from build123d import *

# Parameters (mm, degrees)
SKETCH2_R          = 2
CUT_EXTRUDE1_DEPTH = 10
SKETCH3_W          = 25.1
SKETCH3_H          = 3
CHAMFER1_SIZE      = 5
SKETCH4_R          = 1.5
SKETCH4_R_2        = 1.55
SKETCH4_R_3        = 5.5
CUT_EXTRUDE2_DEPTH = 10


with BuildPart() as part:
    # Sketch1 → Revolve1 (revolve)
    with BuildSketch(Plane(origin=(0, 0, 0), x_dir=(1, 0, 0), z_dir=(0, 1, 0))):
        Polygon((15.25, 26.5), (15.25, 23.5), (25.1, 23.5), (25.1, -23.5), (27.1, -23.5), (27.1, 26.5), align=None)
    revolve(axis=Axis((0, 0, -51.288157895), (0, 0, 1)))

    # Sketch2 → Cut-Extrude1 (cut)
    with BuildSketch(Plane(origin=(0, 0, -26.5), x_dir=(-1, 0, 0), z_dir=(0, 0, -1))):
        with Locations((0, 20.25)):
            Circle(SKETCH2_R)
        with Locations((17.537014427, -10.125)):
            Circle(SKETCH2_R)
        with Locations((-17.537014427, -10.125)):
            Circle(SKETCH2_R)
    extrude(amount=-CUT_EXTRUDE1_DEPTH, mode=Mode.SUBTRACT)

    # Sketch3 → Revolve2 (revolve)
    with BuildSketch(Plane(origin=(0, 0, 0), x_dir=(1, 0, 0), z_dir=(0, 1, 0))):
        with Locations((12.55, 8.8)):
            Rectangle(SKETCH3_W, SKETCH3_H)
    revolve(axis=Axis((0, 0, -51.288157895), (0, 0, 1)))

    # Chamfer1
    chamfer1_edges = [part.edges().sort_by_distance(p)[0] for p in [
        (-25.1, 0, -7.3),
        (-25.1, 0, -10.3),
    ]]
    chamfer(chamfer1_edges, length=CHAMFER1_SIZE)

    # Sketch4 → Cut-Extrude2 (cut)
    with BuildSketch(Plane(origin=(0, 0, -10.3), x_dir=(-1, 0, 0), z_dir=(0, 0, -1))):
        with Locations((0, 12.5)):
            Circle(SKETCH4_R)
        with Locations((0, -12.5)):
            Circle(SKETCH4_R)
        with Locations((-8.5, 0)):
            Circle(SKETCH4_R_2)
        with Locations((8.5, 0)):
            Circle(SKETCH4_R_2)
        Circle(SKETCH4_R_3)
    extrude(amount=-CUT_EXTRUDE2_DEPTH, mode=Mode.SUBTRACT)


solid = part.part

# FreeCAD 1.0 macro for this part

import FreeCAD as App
import Part
import Sketcher

V = App.Vector
Q = App.Units.Quantity


def edges_at(feature, points):
    """Names of the edges that pass closest to the given points."""
    edges = feature.Shape.Edges
    near = lambda p: min(range(len(edges)), key=lambda i: edges[i].distToShape(Part.Vertex(*p))[0])
    return sorted({f"Edge{near(p) + 1}" for p in points})


def add_polygon(sketch, points):
    """Adds a closed chain of lines whose ends are joined by coincident constraints."""
    first, n = sketch.GeometryCount, len(points)
    for a, b in zip(points, points[1:] + points[:1]):
        sketch.addGeometry(Part.LineSegment(App.Vector(*a, 0), App.Vector(*b, 0)), False)
    for i in range(n):
        sketch.addConstraint(Sketcher.Constraint("Coincident", first + i, 2, first + (i + 1) % n, 1))

doc = App.newDocument("Part")
params = doc.addObject("Spreadsheet::Sheet", "Params")
for row, (alias, value) in enumerate([
    ("sketch1_width", "2 mm"),
    ("sketch1_height", "3 mm"),
    ("sketch1_height2", "47 mm"),
    ("sketch1_width2", "9.85 mm"),
    ("revolution_angle", "360 deg"),
    ("sketch2_diameter", "4 mm"),
    ("pocket1_length", "10 mm"),
    ("sketch3_height", "3 mm"),
    ("sketch3_width", "25.1 mm"),
    ("revolution2_angle", "360 deg"),
    ("chamfer_size", "5 mm"),
    ("sketch4_diameter", "3 mm"),
    ("sketch4_diameter2", "11 mm"),
    ("sketch4_diameter3", "3.1 mm"),
    ("pocket2_length", "10 mm"),
], start=1):
    params.set(f"A{row}", alias)
    params.set(f"B{row}", "=" + value)
    params.setAlias(f"B{row}", alias)

body = doc.addObject("PartDesign::Body", "Body")

# Sketch on XZ plane
sketch1 = doc.addObject("Sketcher::SketchObject", "Sketch")
body.addObject(sketch1)
sketch1.AttachmentSupport = (doc.XZ_Plane, [""])
sketch1.MapMode = "FlatFace"
add_polygon(sketch1, [(15.2, -26.5), (15.2, -23.5), (25.1, -23.5), (25.1, 23.5), (27.1, 23.5), (27.1, -26.5)])  # lines 0-5
sketch1.addConstraint(Sketcher.Constraint("Vertical", 0))
sketch1.addConstraint(Sketcher.Constraint("Horizontal", 1))
sketch1.addConstraint(Sketcher.Constraint("Vertical", 2))
sketch1.addConstraint(Sketcher.Constraint("Horizontal", 3))
sketch1.addConstraint(Sketcher.Constraint("Vertical", 4))
sketch1.addConstraint(Sketcher.Constraint("Horizontal", 5))
sketch1.addConstraint(Sketcher.Constraint("DistanceX", 3, 1, 3, 2, Q("2 mm")))
sketch1.addConstraint(Sketcher.Constraint("DistanceY", 0, 1, 0, 2, Q("3 mm")))
sketch1.addConstraint(Sketcher.Constraint("DistanceY", 2, 1, 2, 2, Q("47 mm")))
sketch1.addConstraint(Sketcher.Constraint("DistanceX", 1, 1, 1, 2, Q("9.85 mm")))
sketch1.addConstraint(Sketcher.Constraint("DistanceY", 0, 2, -1, 1, Q("23.5 mm")))
sketch1.addConstraint(Sketcher.Constraint("DistanceX", -1, 1, 1, 2, Q("25.1 mm")))
sketch1.setExpression("Constraints[12]", "Params.sketch1_width")
sketch1.setExpression("Constraints[13]", "Params.sketch1_height")
sketch1.setExpression("Constraints[14]", "Params.sketch1_height2")
sketch1.setExpression("Constraints[15]", "Params.sketch1_width2")
revolution = doc.addObject("PartDesign::Revolution", "Revolution")
body.addObject(revolution)
revolution.Profile = sketch1
revolution.ReferenceAxis = (sketch1, ["V_Axis"])
revolution.setExpression("Angle", "Params.revolution_angle")

# Sketch on XY plane
sketch2 = doc.addObject("Sketcher::SketchObject", "Sketch001")
body.addObject(sketch2)
sketch2.AttachmentSupport = (doc.XY_Plane, [""])
sketch2.MapMode = "FlatFace"
sketch2.AttachmentOffset = App.Placement(V(0, 0, -26.5), App.Rotation())
sketch2.addGeometry(Part.Circle(V(0, 20.2, 0), V(0, 0, 1), 2), False)
sketch2.addGeometry(Part.Circle(V(-17.5, -10.1, 0), V(0, 0, 1), 2), False)
sketch2.addGeometry(Part.Circle(V(17.5, -10.1, 0), V(0, 0, 1), 2), False)
sketch2.addConstraint(Sketcher.Constraint("Equal", 0, 1))
sketch2.addConstraint(Sketcher.Constraint("Equal", 1, 2))
sketch2.addConstraint(Sketcher.Constraint("Symmetric", 1, 3, 2, 3, -2))
sketch2.addConstraint(Sketcher.Constraint("PointOnObject", 0, 3, -2))
sketch2.addConstraint(Sketcher.Constraint("Diameter", 0, Q("4 mm")))
sketch2.addConstraint(Sketcher.Constraint("DistanceY", -1, 1, 0, 3, Q("20.25 mm")))
sketch2.addConstraint(Sketcher.Constraint("DistanceY", 1, 3, -1, 1, Q("10.125 mm")))
sketch2.addConstraint(Sketcher.Constraint("DistanceX", 1, 3, 2, 3, Q("35.074029 mm")))
sketch2.setExpression("Constraints[4]", "Params.sketch2_diameter")
pocket1 = doc.addObject("PartDesign::Pocket", "Pocket")
body.addObject(pocket1)
pocket1.Profile = sketch2
pocket1.setExpression("Length", "Params.pocket1_length")
pocket1.Reversed = True

# Sketch on XZ plane
sketch3 = doc.addObject("Sketcher::SketchObject", "Sketch002")
body.addObject(sketch3)
sketch3.AttachmentSupport = (doc.XZ_Plane, [""])
sketch3.MapMode = "FlatFace"
add_polygon(sketch3, [(0, -10.3), (0, -7.3), (25.1, -7.3), (25.1, -10.3)])  # lines 0-3
sketch3.addConstraint(Sketcher.Constraint("Vertical", 0))
sketch3.addConstraint(Sketcher.Constraint("Horizontal", 1))
sketch3.addConstraint(Sketcher.Constraint("Vertical", 2))
sketch3.addConstraint(Sketcher.Constraint("Horizontal", 3))
sketch3.addConstraint(Sketcher.Constraint("PointOnObject", 0, 2, -2))
sketch3.addConstraint(Sketcher.Constraint("DistanceY", 0, 1, 0, 2, Q("3 mm")))
sketch3.addConstraint(Sketcher.Constraint("DistanceX", 1, 1, 1, 2, Q("25.1 mm")))
sketch3.addConstraint(Sketcher.Constraint("DistanceY", 0, 2, -1, 1, Q("7.3 mm")))
sketch3.setExpression("Constraints[9]", "Params.sketch3_height")
sketch3.setExpression("Constraints[10]", "Params.sketch3_width")
revolution2 = doc.addObject("PartDesign::Revolution", "Revolution001")
body.addObject(revolution2)
revolution2.Profile = sketch3
revolution2.ReferenceAxis = (sketch3, ["V_Axis"])
revolution2.setExpression("Angle", "Params.revolution2_angle")
doc.recompute()

chamfer = doc.addObject("PartDesign::Chamfer", "Chamfer")
body.addObject(chamfer)
chamfer.Base = (revolution2, edges_at(revolution2, [(-25.1, 0, -7.3), (-25.1, 0, -10.3)]))
chamfer.setExpression("Size", "Params.chamfer_size")

# Sketch on XY plane
sketch4 = doc.addObject("Sketcher::SketchObject", "Sketch003")
body.addObject(sketch4)
sketch4.AttachmentSupport = (doc.XY_Plane, [""])
sketch4.MapMode = "FlatFace"
sketch4.AttachmentOffset = App.Placement(V(0, 0, -10.3), App.Rotation())
sketch4.addGeometry(Part.Circle(V(0, 12.5, 0), V(0, 0, 1), 1.5), False)
sketch4.addGeometry(Part.Circle(V(0, -12.5, 0), V(0, 0, 1), 1.5), False)
sketch4.addGeometry(Part.Circle(V(8.5, 0, 0), V(0, 0, 1), 1.6), False)
sketch4.addGeometry(Part.Circle(V(-8.5, 0, 0), V(0, 0, 1), 1.6), False)
sketch4.addGeometry(Part.Circle(V(0, 0, 0), V(0, 0, 1), 5.5), False)
sketch4.addConstraint(Sketcher.Constraint("Coincident", 4, 3, -1, 1))
sketch4.addConstraint(Sketcher.Constraint("Equal", 0, 1))
sketch4.addConstraint(Sketcher.Constraint("Equal", 2, 3))
sketch4.addConstraint(Sketcher.Constraint("Symmetric", 0, 3, 1, 3, -1, 1))
sketch4.addConstraint(Sketcher.Constraint("Symmetric", 2, 3, 3, 3, -1, 1))
sketch4.addConstraint(Sketcher.Constraint("PointOnObject", 0, 3, -2))
sketch4.addConstraint(Sketcher.Constraint("PointOnObject", 2, 3, -1))
sketch4.addConstraint(Sketcher.Constraint("Diameter", 0, Q("3 mm")))
sketch4.addConstraint(Sketcher.Constraint("Diameter", 4, Q("11 mm")))
sketch4.addConstraint(Sketcher.Constraint("Diameter", 2, Q("3.1 mm")))
sketch4.addConstraint(Sketcher.Constraint("DistanceY", 1, 3, 0, 3, Q("25 mm")))
sketch4.addConstraint(Sketcher.Constraint("DistanceX", 3, 3, 2, 3, Q("17 mm")))
sketch4.setExpression("Constraints[7]", "Params.sketch4_diameter")
sketch4.setExpression("Constraints[8]", "Params.sketch4_diameter2")
sketch4.setExpression("Constraints[9]", "Params.sketch4_diameter3")
pocket2 = doc.addObject("PartDesign::Pocket", "Pocket001")
body.addObject(pocket2)
pocket2.Profile = sketch4
pocket2.setExpression("Length", "Params.pocket2_length")
pocket2.Reversed = True

doc.recompute()
